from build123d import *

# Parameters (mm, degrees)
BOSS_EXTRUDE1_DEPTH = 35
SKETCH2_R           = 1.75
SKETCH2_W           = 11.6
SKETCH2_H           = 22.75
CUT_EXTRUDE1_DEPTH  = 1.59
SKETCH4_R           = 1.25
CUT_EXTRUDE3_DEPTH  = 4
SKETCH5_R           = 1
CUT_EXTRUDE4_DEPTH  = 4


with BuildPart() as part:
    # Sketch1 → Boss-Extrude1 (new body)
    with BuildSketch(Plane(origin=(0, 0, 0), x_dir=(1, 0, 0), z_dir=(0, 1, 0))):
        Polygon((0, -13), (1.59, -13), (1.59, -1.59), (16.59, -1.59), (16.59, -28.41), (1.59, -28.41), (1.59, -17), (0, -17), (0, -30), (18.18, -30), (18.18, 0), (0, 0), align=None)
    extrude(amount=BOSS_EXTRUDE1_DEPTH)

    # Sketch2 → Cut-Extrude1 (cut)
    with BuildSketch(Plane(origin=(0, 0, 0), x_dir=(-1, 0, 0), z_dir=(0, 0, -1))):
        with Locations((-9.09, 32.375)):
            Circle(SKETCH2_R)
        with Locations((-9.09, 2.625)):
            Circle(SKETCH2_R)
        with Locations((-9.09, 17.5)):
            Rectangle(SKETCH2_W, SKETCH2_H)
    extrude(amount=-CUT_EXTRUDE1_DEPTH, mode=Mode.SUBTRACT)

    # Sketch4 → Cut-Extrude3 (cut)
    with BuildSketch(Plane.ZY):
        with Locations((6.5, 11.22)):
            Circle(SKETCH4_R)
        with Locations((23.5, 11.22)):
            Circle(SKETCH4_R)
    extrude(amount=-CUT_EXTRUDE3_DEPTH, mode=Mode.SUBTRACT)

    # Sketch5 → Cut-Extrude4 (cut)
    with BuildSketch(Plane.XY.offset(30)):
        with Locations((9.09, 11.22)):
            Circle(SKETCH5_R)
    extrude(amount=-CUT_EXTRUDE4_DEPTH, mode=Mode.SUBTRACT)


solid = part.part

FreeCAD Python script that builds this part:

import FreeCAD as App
import Part
import Sketcher
from FreeCAD import Vector


def add_polygon(sketch, points):
    """Adds a closed chain of lines whose ends are joined by coincident constraints."""
    first, n = sketch.GeometryCount, len(points)
    for a, b in zip(points, points[1:] + points[:1]):
        sketch.addGeometry(Part.LineSegment(App.Vector(*a, 0), App.Vector(*b, 0)), False)
    for i in range(n):
        sketch.addConstraint(Sketcher.Constraint("Coincident", first + i, 2, first + (i + 1) % n, 1))

doc = App.newDocument("Part")
body = doc.addObject("PartDesign::Body", "Body")

# Sketch on XZ plane
sketch1 = doc.addObject("Sketcher::SketchObject", "Sketch")
body.addObject(sketch1)
sketch1.AttachmentSupport = (doc.XZ_Plane, [""])
sketch1.MapMode = "FlatFace"
add_polygon(sketch1, [(0, 13), (1.6, 13), (1.6, 1.6), (16.6, 1.6), (16.6, 28.4), (1.6, 28.4), (1.6, 17), (0, 17), (0, 30), (18.2, 30), (18.2, 0), (0, 0)])  # lines 0-11
sketch1.addConstraint([
    Sketcher.Constraint("Horizontal", 0),
    Sketcher.Constraint("Vertical", 1),
    Sketcher.Constraint("Horizontal", 2),
    Sketcher.Constraint("Vertical", 3),
    Sketcher.Constraint("Horizontal", 4),
    Sketcher.Constraint("Vertical", 5),
    Sketcher.Constraint("Horizontal", 6),
    Sketcher.Constraint("Vertical", 7),
    Sketcher.Constraint("Horizontal", 8),
    Sketcher.Constraint("Vertical", 9),
    Sketcher.Constraint("Horizontal", 10),
    Sketcher.Constraint("Vertical", 11),
    Sketcher.Constraint("Coincident", 10, 2, -1, 1),
    Sketcher.Constraint("PointOnObject", 6, 2, -2),
    Sketcher.Constraint("Vertical", 1, 2, 4, 2),
    Sketcher.Constraint("Equal", 1, 5),
    Sketcher.Constraint("Equal", 7, 11),
    Sketcher.Constraint("DistanceX", 2, 1, 2, 2, 15.0),
    Sketcher.Constraint("DistanceY", 7, 1, 7, 2, 13.0),
    Sketcher.Constraint("DistanceY", 9, 2, 9, 1, 30.0),
    Sketcher.Constraint("DistanceX", 0, 1, 0, 2, 1.59),
    Sketcher.Constraint("DistanceX", 8, 1, 8, 2, 18.18),
    Sketcher.Constraint("DistanceY", 1, 2, 1, 1, 11.41),
])
pad1 = doc.addObject("PartDesign::Pad", "Pad")
body.addObject(pad1)
pad1.Profile = sketch1
pad1.Length = 35
pad1.Reversed = True

# Sketch on XY plane
sketch2 = doc.addObject("Sketcher::SketchObject", "Sketch001")
body.addObject(sketch2)
sketch2.AttachmentSupport = (doc.XY_Plane, [""])
sketch2.MapMode = "FlatFace"
sketch2.addGeometry(Part.Circle(Vector(9.1, 32.4, 0), Vector(0, 0, 1), 1.8), False)  # 0
sketch2.addGeometry(Part.Circle(Vector(9.1, 2.6, 0), Vector(0, 0, 1), 1.8), False)  # 1
add_polygon(sketch2, [(14.9, 28.9), (14.9, 6.1), (3.3, 6.1), (3.3, 28.9)])  # lines 2-5
sketch2.addConstraint([
    Sketcher.Constraint("Vertical", 2),
    Sketcher.Constraint("Horizontal", 3),
    Sketcher.Constraint("Vertical", 4),
    Sketcher.Constraint("Horizontal", 5),
    Sketcher.Constraint("Equal", 0, 1),
    Sketcher.Constraint("Vertical", 0, 3, 1, 3),
    Sketcher.Constraint("Diameter", 0, 3.5),
    Sketcher.Constraint("DistanceX", 3, 2, 3, 1, 11.6),
    Sketcher.Constraint("DistanceY", 2, 2, 2, 1, 22.75),
    Sketcher.Constraint("DistanceX", 1, 3, 2, 2, 5.8),
    Sketcher.Constraint("DistanceY", 1, 3, 2, 2, 3.5),
    Sketcher.Constraint("DistanceY", 4, 2, 0, 3, 3.5),
    Sketcher.Constraint("DistanceX", -1, 1, 0, 3, 9.09),
    Sketcher.Constraint("DistanceY", -1, 1, 0, 3, 32.375),
])
pocket1 = doc.addObject("PartDesign::Pocket", "Pocket")
body.addObject(pocket1)
pocket1.Profile = sketch2
pocket1.Length = 1.59
pocket1.Reversed = True

# Sketch on YZ plane
sketch3 = doc.addObject("Sketcher::SketchObject", "Sketch002")
body.addObject(sketch3)
sketch3.AttachmentSupport = (doc.YZ_Plane, [""])
sketch3.MapMode = "FlatFace"
sketch3.addGeometry([
    Part.Circle(Vector(11.2, 6.5, 0), Vector(0, 0, 1), 1.2),
    Part.Circle(Vector(11.2, 23.5, 0), Vector(0, 0, 1), 1.2),
], False)
sketch3.addConstraint([
    Sketcher.Constraint("Equal", 0, 1),
    Sketcher.Constraint("Vertical", 0, 3, 1, 3),
    Sketcher.Constraint("Diameter", 0, 2.5),
    Sketcher.Constraint("DistanceY", 0, 3, 1, 3, 17.0),
    Sketcher.Constraint("DistanceY", -1, 1, 0, 3, 6.5),
    Sketcher.Constraint("DistanceX", -1, 1, 0, 3, 11.22),
])
pocket2 = doc.addObject("PartDesign::Pocket", "Pocket001")
body.addObject(pocket2)
pocket2.Profile = sketch3
pocket2.Length = 4
pocket2.Reversed = True

# Sketch on XY plane
sketch4 = doc.addObject("Sketcher::SketchObject", "Sketch003")
body.addObject(sketch4)
sketch4.AttachmentSupport = (doc.XY_Plane, [""])
sketch4.MapMode = "FlatFace"
sketch4.AttachmentOffset = App.Placement(Vector(0, 0, 30), App.Rotation())
sketch4.addGeometry(Part.Circle(Vector(9.1, 11.2, 0), Vector(0, 0, 1), 1), False)
sketch4.addConstraint([
    Sketcher.Constraint("Diameter", 0, 2.0),
    Sketcher.Constraint("DistanceX", -1, 1, 0, 3, 9.09),
    Sketcher.Constraint("DistanceY", -1, 1, 0, 3, 11.22),
])
pocket3 = doc.addObject("PartDesign::Pocket", "Pocket002")
body.addObject(pocket3)
pocket3.Profile = sketch4
pocket3.Length = 4

doc.recompute()
